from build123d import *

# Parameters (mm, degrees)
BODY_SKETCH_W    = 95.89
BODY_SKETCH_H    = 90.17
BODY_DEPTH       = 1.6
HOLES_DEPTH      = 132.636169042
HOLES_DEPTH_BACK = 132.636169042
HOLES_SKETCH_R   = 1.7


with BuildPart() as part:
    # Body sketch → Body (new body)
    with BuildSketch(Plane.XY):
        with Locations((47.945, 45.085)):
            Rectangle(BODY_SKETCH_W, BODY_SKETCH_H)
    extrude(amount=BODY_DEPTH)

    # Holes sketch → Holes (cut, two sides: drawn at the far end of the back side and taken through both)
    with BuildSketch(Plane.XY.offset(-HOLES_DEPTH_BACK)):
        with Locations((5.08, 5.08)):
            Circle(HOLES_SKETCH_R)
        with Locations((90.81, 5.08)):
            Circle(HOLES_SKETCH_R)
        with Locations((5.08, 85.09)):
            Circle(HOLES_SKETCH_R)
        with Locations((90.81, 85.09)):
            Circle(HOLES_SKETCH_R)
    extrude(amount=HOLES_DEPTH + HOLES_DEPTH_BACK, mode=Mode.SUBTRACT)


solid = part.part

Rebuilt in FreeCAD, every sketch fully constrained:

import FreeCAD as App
import Part
import Sketcher

V = App.Vector


def add_polygon(sketch, points):
    """Adds a closed chain of lines whose ends are joined by coincident constraints."""
    first, n = sketch.GeometryCount, len(points)
    for a, b in zip(points, points[1:] + points[:1]):
        sketch.addGeometry(Part.LineSegment(App.Vector(*a, 0), App.Vector(*b, 0)), False)
    for i in range(n):
        sketch.addConstraint(Sketcher.Constraint("Coincident", first + i, 2, first + (i + 1) % n, 1))

doc = App.newDocument("Part")
body = doc.addObject("PartDesign::Body", "Body")

sketch1 = doc.addObject("Sketcher::SketchObject", "Sketch")
body.addObject(sketch1)
sketch1.AttachmentSupport = (doc.XY_Plane, [""])
sketch1.MapMode = "FlatFace"
add_polygon(sketch1, [(0, 90), (0, 0), (96, 0), (96, 90)])
sketch1.addConstraint([
    Sketcher.Constraint("Vertical", 0),
    Sketcher.Constraint("Horizontal", 1),
    Sketcher.Constraint("Vertical", 2),
    Sketcher.Constraint("Horizontal", 3),
    Sketcher.Constraint("Coincident", 0, 2, -1, 1),
    Sketcher.Constraint("DistanceX", 1, 1, 1, 2, 95.89),
    Sketcher.Constraint("DistanceY", 0, 2, 0, 1, 90.17),
])
pad1 = doc.addObject("PartDesign::Pad", "Pad")
body.addObject(pad1)
pad1.Profile = sketch1
pad1.Length = 1.6

sketch2 = doc.addObject("Sketcher::SketchObject", "Sketch001")
body.addObject(sketch2)
sketch2.AttachmentSupport = (doc.XY_Plane, [""])
sketch2.MapMode = "FlatFace"
sketch2.addGeometry([
    Part.Circle(V(5.1, 5.1, 0), V(0, 0, 1), 1.7),
    Part.Circle(V(90.8, 5.1, 0), V(0, 0, 1), 1.7),
    Part.Circle(V(5.1, 85.1, 0), V(0, 0, 1), 1.7),
    Part.Circle(V(90.8, 85.1, 0), V(0, 0, 1), 1.7),
], False)
sketch2.addConstraint([
    Sketcher.Constraint("Equal", 0, 1),
    Sketcher.Constraint("Equal", 1, 2),
    Sketcher.Constraint("Equal", 2, 3),
    Sketcher.Constraint("Horizontal", 0, 3, 1, 3),
    Sketcher.Constraint("Horizontal", 2, 3, 3, 3),
    Sketcher.Constraint("Vertical", 0, 3, 2, 3),
    Sketcher.Constraint("Vertical", 1, 3, 3, 3),
    Sketcher.Constraint("Diameter", 0, 3.4),
    Sketcher.Constraint("DistanceX", -1, 1, 0, 3, 5.08),
    Sketcher.Constraint("DistanceY", -1, 1, 0, 3, 5.08),
    Sketcher.Constraint("DistanceX", -1, 1, 1, 3, 90.81),
    Sketcher.Constraint("DistanceY", -1, 1, 2, 3, 85.09),
])
pocket1 = doc.addObject("PartDesign::Pocket", "Pocket")
body.addObject(pocket1)
pocket1.Profile = sketch2
pocket1.Type = "ThroughAll"
pocket1.Midplane = True

doc.recompute()
